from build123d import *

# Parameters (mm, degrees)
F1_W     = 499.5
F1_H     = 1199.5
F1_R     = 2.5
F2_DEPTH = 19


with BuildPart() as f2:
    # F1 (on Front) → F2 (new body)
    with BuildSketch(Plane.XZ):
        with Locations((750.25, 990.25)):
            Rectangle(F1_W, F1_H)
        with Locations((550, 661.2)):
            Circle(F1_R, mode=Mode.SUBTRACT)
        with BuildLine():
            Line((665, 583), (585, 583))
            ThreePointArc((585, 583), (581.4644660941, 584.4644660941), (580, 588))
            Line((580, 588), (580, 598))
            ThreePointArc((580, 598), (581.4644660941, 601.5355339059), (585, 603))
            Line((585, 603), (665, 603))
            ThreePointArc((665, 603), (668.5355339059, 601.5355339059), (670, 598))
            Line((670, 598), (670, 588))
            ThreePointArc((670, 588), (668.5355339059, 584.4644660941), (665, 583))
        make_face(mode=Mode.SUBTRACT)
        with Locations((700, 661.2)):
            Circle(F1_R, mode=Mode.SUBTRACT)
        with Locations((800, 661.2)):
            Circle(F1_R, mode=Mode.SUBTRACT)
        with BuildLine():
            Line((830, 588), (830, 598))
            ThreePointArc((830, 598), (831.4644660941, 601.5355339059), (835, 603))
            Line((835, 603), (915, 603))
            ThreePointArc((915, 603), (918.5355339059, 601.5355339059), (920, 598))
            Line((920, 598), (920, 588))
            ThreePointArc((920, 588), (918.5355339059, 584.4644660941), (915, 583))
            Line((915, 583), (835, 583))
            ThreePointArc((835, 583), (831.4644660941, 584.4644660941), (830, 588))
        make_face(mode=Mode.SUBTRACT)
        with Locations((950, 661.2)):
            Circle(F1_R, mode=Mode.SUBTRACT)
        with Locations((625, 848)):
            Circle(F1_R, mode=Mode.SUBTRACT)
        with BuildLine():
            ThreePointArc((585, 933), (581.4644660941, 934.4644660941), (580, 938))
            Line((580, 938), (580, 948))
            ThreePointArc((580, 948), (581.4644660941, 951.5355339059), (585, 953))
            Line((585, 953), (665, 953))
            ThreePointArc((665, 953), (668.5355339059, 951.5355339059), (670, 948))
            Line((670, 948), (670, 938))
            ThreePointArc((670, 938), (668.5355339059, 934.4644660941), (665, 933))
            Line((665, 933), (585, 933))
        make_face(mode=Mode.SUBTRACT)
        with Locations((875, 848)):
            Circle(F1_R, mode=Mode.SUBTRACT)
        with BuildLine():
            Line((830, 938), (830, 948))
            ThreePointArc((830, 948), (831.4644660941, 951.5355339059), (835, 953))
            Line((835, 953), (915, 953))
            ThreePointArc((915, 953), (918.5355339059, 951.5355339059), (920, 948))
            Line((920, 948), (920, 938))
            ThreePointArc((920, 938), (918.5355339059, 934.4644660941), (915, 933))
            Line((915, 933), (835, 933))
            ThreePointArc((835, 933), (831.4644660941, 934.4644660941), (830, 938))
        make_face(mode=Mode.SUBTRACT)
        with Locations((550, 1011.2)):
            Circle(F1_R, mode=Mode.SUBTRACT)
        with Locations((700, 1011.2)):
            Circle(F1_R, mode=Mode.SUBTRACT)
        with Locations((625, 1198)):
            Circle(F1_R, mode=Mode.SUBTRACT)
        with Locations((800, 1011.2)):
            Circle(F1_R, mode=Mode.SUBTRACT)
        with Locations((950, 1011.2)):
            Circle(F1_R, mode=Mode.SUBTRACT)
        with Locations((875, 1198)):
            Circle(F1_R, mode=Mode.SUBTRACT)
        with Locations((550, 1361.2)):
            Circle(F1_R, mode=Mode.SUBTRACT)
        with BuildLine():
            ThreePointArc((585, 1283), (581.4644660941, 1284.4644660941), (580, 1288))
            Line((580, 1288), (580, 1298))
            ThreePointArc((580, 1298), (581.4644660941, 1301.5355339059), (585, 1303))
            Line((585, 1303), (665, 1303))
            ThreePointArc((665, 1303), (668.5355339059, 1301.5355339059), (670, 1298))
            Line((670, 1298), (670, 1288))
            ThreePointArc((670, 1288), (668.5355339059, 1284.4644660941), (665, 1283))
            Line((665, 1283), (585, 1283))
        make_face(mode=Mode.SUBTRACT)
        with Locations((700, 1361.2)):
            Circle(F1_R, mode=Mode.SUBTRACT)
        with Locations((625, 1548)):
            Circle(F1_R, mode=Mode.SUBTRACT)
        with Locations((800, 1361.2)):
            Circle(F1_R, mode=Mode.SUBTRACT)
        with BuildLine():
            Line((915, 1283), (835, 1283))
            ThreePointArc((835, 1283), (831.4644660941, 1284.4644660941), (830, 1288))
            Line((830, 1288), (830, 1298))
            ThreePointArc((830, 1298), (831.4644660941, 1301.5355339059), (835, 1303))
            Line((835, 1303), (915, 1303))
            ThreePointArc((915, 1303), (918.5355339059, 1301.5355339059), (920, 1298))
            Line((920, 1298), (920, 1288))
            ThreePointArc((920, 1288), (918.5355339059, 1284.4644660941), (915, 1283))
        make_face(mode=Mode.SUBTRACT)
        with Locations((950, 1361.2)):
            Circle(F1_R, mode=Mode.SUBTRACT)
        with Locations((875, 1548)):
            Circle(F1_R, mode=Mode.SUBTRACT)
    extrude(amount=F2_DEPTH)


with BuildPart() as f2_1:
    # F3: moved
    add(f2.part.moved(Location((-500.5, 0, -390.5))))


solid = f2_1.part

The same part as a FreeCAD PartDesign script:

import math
import FreeCAD as App
import Part
import Sketcher

V = App.Vector


def add_polygon(sketch, points):
    """Adds a closed chain of lines whose ends are joined by coincident constraints."""
    first, n = sketch.GeometryCount, len(points)
    for a, b in zip(points, points[1:] + points[:1]):
        sketch.addGeometry(Part.LineSegment(App.Vector(*a, 0), App.Vector(*b, 0)), False)
    for i in range(n):
        sketch.addConstraint(Sketcher.Constraint("Coincident", first + i, 2, first + (i + 1) % n, 1))

doc = App.newDocument("Part")
params = doc.addObject("Spreadsheet::Sheet", "Params")
for row, (alias, value) in enumerate([
    ("sketch1_diameter", "5 mm"),
    ("sketch1_radius", "5 mm"),
    ("sketch1_width", "80 mm"),
    ("sketch1_height", "10 mm"),
    ("sketch1_width2", "499.5 mm"),
    ("pad1_length", "19 mm"),
], start=1):
    params.set(f"A{row}", alias)
    params.set(f"B{row}", "=" + value)
    params.setAlias(f"B{row}", alias)

body = doc.addObject("PartDesign::Body", "Body")

sketch1 = body.newObject("Sketcher::SketchObject", "Sketch")
sketch1.AttachmentSupport = (doc.getObject("XZ_Plane"), [""])
sketch1.MapMode = "FlatFace"
add_polygon(sketch1, [(500.5, 1590), (500.5, 390.5), (1000, 390.5), (1000, 1590)])
sketch1.addGeometry(Part.Circle(V(550, 661.2, 0), V(0, 0, 1), 2.5), False)
sketch1.addGeometry(Part.ArcOfCircle(Part.Circle(V(665, 588, 0), V(0, 0, 1), 5), math.radians(-90), math.radians(0)), False)
sketch1.addGeometry(Part.LineSegment(V(665, 583, 0), V(585, 583, 0)), False)
sketch1.addGeometry(Part.ArcOfCircle(Part.Circle(V(585, 588, 0), V(0, 0, 1), 5), math.radians(180), math.radians(270)), False)
sketch1.addGeometry(Part.LineSegment(V(580, 588, 0), V(580, 598, 0)), False)
sketch1.addGeometry(Part.ArcOfCircle(Part.Circle(V(585, 598, 0), V(0, 0, 1), 5), math.radians(90), math.radians(180)), False)
sketch1.addGeometry(Part.LineSegment(V(585, 603, 0), V(665, 603, 0)), False)
sketch1.addGeometry(Part.ArcOfCircle(Part.Circle(V(665, 598, 0), V(0, 0, 1), 5), math.radians(0), math.radians(90)), False)
sketch1.addGeometry(Part.LineSegment(V(670, 598, 0), V(670, 588, 0)), False)
sketch1.addGeometry(Part.Circle(V(700, 661.2, 0), V(0, 0, 1), 2.5), False)
sketch1.addGeometry(Part.Circle(V(625, 848, 0), V(0, 0, 1), 2.5), False)
sketch1.addGeometry(Part.LineSegment(V(665, 933, 0), V(585, 933, 0)), False)
sketch1.addGeometry(Part.ArcOfCircle(Part.Circle(V(585, 938, 0), V(0, 0, 1), 5), math.radians(180), math.radians(270)), False)
sketch1.addGeometry(Part.LineSegment(V(580, 938, 0), V(580, 948, 0)), False)
sketch1.addGeometry(Part.ArcOfCircle(Part.Circle(V(585, 948, 0), V(0, 0, 1), 5), math.radians(90), math.radians(180)), False)
sketch1.addGeometry(Part.LineSegment(V(585, 953, 0), V(665, 953, 0)), False)
sketch1.addGeometry(Part.ArcOfCircle(Part.Circle(V(665, 948, 0), V(0, 0, 1), 5), math.radians(0), math.radians(90)), False)
sketch1.addGeometry(Part.LineSegment(V(670, 948, 0), V(670, 938, 0)), False)
sketch1.addGeometry(Part.ArcOfCircle(Part.Circle(V(665, 938, 0), V(0, 0, 1), 5), math.radians(-90), math.radians(0)), False)
sketch1.addGeometry(Part.Circle(V(550, 1011.2, 0), V(0, 0, 1), 2.5), False)
sketch1.addGeometry(Part.Circle(V(700, 1011.2, 0), V(0, 0, 1), 2.5), False)
sketch1.addGeometry(Part.Circle(V(800, 661.2, 0), V(0, 0, 1), 2.5), False)
sketch1.addGeometry(Part.ArcOfCircle(Part.Circle(V(835, 588, 0), V(0, 0, 1), 5), math.radians(180), math.radians(270)), False)
sketch1.addGeometry(Part.LineSegment(V(830, 588, 0), V(830, 598, 0)), False)
sketch1.addGeometry(Part.ArcOfCircle(Part.Circle(V(835, 598, 0), V(0, 0, 1), 5), math.radians(90), math.radians(180)), False)
sketch1.addGeometry(Part.LineSegment(V(835, 603, 0), V(915, 603, 0)), False)
sketch1.addGeometry(Part.ArcOfCircle(Part.Circle(V(915, 598, 0), V(0, 0, 1), 5), math.radians(0), math.radians(90)), False)
sketch1.addGeometry(Part.LineSegment(V(920, 598, 0), V(920, 588, 0)), False)
sketch1.addGeometry(Part.ArcOfCircle(Part.Circle(V(915, 588, 0), V(0, 0, 1), 5), math.radians(-90), math.radians(0)), False)
sketch1.addGeometry(Part.LineSegment(V(915, 583, 0), V(835, 583, 0)), False)
sketch1.addGeometry(Part.Circle(V(950, 661.2, 0), V(0, 0, 1), 2.5), False)
sketch1.addGeometry(Part.Circle(V(800, 1011.2, 0), V(0, 0, 1), 2.5), False)
sketch1.addGeometry(Part.Circle(V(875, 848, 0), V(0, 0, 1), 2.5), False)
sketch1.addGeometry(Part.ArcOfCircle(Part.Circle(V(835, 938, 0), V(0, 0, 1), 5), math.radians(180), math.radians(270)), False)
sketch1.addGeometry(Part.LineSegment(V(830, 938, 0), V(830, 948, 0)), False)
sketch1.addGeometry(Part.ArcOfCircle(Part.Circle(V(835, 948, 0), V(0, 0, 1), 5), math.radians(90), math.radians(180)), False)
sketch1.addGeometry(Part.LineSegment(V(835, 953, 0), V(915, 953, 0)), False)
sketch1.addGeometry(Part.ArcOfCircle(Part.Circle(V(915, 948, 0), V(0, 0, 1), 5), math.radians(0), math.radians(90)), False)
sketch1.addGeometry(Part.LineSegment(V(920, 948, 0), V(920, 938, 0)), False)
sketch1.addGeometry(Part.ArcOfCircle(Part.Circle(V(915, 938, 0), V(0, 0, 1), 5), math.radians(-90), math.radians(0)), False)
sketch1.addGeometry(Part.LineSegment(V(915, 933, 0), V(835, 933, 0)), False)
sketch1.addGeometry(Part.Circle(V(950, 1011.2, 0), V(0, 0, 1), 2.5), False)
sketch1.addGeometry(Part.Circle(V(625, 1198, 0), V(0, 0, 1), 2.5), False)
sketch1.addGeometry(Part.LineSegment(V(665, 1283, 0), V(585, 1283, 0)), False)
sketch1.addGeometry(Part.ArcOfCircle(Part.Circle(V(585, 1288, 0), V(0, 0, 1), 5), math.radians(180), math.radians(270)), False)
sketch1.addGeometry(Part.LineSegment(V(580, 1288, 0), V(580, 1298, 0)), False)
sketch1.addGeometry(Part.ArcOfCircle(Part.Circle(V(585, 1298, 0), V(0, 0, 1), 5), math.radians(90), math.radians(180)), False)
sketch1.addGeometry(Part.LineSegment(V(585, 1303, 0), V(665, 1303, 0)), False)
sketch1.addGeometry(Part.ArcOfCircle(Part.Circle(V(665, 1298, 0), V(0, 0, 1), 5), math.radians(0), math.radians(90)), False)
sketch1.addGeometry(Part.LineSegment(V(670, 1298, 0), V(670, 1288, 0)), False)
sketch1.addGeometry(Part.ArcOfCircle(Part.Circle(V(665, 1288, 0), V(0, 0, 1), 5), math.radians(-90), math.radians(0)), False)
sketch1.addGeometry(Part.Circle(V(550, 1361.2, 0), V(0, 0, 1), 2.5), False)
sketch1.addGeometry(Part.Circle(V(625, 1548, 0), V(0, 0, 1), 2.5), False)
sketch1.addGeometry(Part.Circle(V(700, 1361.2, 0), V(0, 0, 1), 2.5), False)
sketch1.addGeometry(Part.Circle(V(875, 1198, 0), V(0, 0, 1), 2.5), False)
sketch1.addGeometry(Part.ArcOfCircle(Part.Circle(V(915, 1288, 0), V(0, 0, 1), 5), math.radians(-90), math.radians(0)), False)
sketch1.addGeometry(Part.LineSegment(V(915, 1283, 0), V(835, 1283, 0)), False)
sketch1.addGeometry(Part.ArcOfCircle(Part.Circle(V(835, 1288, 0), V(0, 0, 1), 5), math.radians(180), math.radians(270)), False)
sketch1.addGeometry(Part.LineSegment(V(830, 1288, 0), V(830, 1298, 0)), False)
sketch1.addGeometry(Part.ArcOfCircle(Part.Circle(V(835, 1298, 0), V(0, 0, 1), 5), math.radians(90), math.radians(180)), False)
sketch1.addGeometry(Part.LineSegment(V(835, 1303, 0), V(915, 1303, 0)), False)
sketch1.addGeometry(Part.ArcOfCircle(Part.Circle(V(915, 1298, 0), V(0, 0, 1), 5), math.radians(0), math.radians(90)), False)
sketch1.addGeometry(Part.LineSegment(V(920, 1298, 0), V(920, 1288, 0)), False)
sketch1.addGeometry(Part.Circle(V(800, 1361.2, 0), V(0, 0, 1), 2.5), False)
sketch1.addGeometry(Part.Circle(V(950, 1361.2, 0), V(0, 0, 1), 2.5), False)
sketch1.addGeometry(Part.Circle(V(875, 1548, 0), V(0, 0, 1), 2.5), False)
sketch1.addConstraint([
    Sketcher.Constraint("Tangent", 5, 1, 6, 1),
    Sketcher.Constraint("Tangent", 6, 2, 7, 2),
    Sketcher.Constraint("Tangent", 7, 1, 8, 1),
    Sketcher.Constraint("Tangent", 8, 2, 9, 2),
    Sketcher.Constraint("Tangent", 9, 1, 10, 1),
    Sketcher.Constraint("Tangent", 10, 2, 11, 2),
    Sketcher.Constraint("Tangent", 11, 1, 12, 1),
    Sketcher.Constraint("Tangent", 12, 2, 5, 2),
    Sketcher.Constraint("Tangent", 15, 2, 16, 2),
    Sketcher.Constraint("Tangent", 16, 1, 17, 1),
    Sketcher.Constraint("Tangent", 17, 2, 18, 2),
    Sketcher.Constraint("Tangent", 18, 1, 19, 1),
    Sketcher.Constraint("Tangent", 19, 2, 20, 2),
    Sketcher.Constraint("Tangent", 20, 1, 21, 1),
    Sketcher.Constraint("Tangent", 21, 2, 22, 2),
    Sketcher.Constraint("Tangent", 22, 1, 15, 1),
    Sketcher.Constraint("Tangent", 26, 1, 27, 1),
    Sketcher.Constraint("Tangent", 27, 2, 28, 2),
    Sketcher.Constraint("Tangent", 28, 1, 29, 1),
    Sketcher.Constraint("Tangent", 29, 2, 30, 2),
    Sketcher.Constraint("Tangent", 30, 1, 31, 1),
    Sketcher.Constraint("Tangent", 31, 2, 32, 2),
    Sketcher.Constraint("Tangent", 32, 1, 33, 1),
    Sketcher.Constraint("Tangent", 33, 2, 26, 2),
    Sketcher.Constraint("Tangent", 37, 1, 38, 1),
    Sketcher.Constraint("Tangent", 38, 2, 39, 2),
    Sketcher.Constraint("Tangent", 39, 1, 40, 1),
    Sketcher.Constraint("Tangent", 40, 2, 41, 2),
    Sketcher.Constraint("Tangent", 41, 1, 42, 1),
    Sketcher.Constraint("Tangent", 42, 2, 43, 2),
    Sketcher.Constraint("Tangent", 43, 1, 44, 1),
    Sketcher.Constraint("Tangent", 44, 2, 37, 2),
    Sketcher.Constraint("Tangent", 47, 2, 48, 2),
    Sketcher.Constraint("Tangent", 48, 1, 49, 1),
    Sketcher.Constraint("Tangent", 49, 2, 50, 2),
    Sketcher.Constraint("Tangent", 50, 1, 51, 1),
    Sketcher.Constraint("Tangent", 51, 2, 52, 2),
    Sketcher.Constraint("Tangent", 52, 1, 53, 1),
    Sketcher.Constraint("Tangent", 53, 2, 54, 2),
    Sketcher.Constraint("Tangent", 54, 1, 47, 1),
    Sketcher.Constraint("Tangent", 59, 1, 60, 1),
    Sketcher.Constraint("Tangent", 60, 2, 61, 2),
    Sketcher.Constraint("Tangent", 61, 1, 62, 1),
    Sketcher.Constraint("Tangent", 62, 2, 63, 2),
    Sketcher.Constraint("Tangent", 63, 1, 64, 1),
    Sketcher.Constraint("Tangent", 64, 2, 65, 2),
    Sketcher.Constraint("Tangent", 65, 1, 66, 1),
    Sketcher.Constraint("Tangent", 66, 2, 59, 2),
    Sketcher.Constraint("Vertical", 0),
    Sketcher.Constraint("Horizontal", 1),
    Sketcher.Constraint("Vertical", 2),
    Sketcher.Constraint("Horizontal", 3),
    Sketcher.Constraint("Horizontal", 6),
    Sketcher.Constraint("Vertical", 8),
    Sketcher.Constraint("Horizontal", 10),
    Sketcher.Constraint("Vertical", 12),
    Sketcher.Constraint("Horizontal", 15),
    Sketcher.Constraint("Vertical", 17),
    Sketcher.Constraint("Horizontal", 19),
    Sketcher.Constraint("Vertical", 21),
    Sketcher.Constraint("Vertical", 27),
    Sketcher.Constraint("Horizontal", 29),
    Sketcher.Constraint("Vertical", 31),
    Sketcher.Constraint("Horizontal", 33),
    Sketcher.Constraint("Vertical", 38),
    Sketcher.Constraint("Horizontal", 40),
    Sketcher.Constraint("Vertical", 42),
    Sketcher.Constraint("Horizontal", 44),
    Sketcher.Constraint("Horizontal", 47),
    Sketcher.Constraint("Vertical", 49),
    Sketcher.Constraint("Horizontal", 51),
    Sketcher.Constraint("Vertical", 53),
    Sketcher.Constraint("Horizontal", 60),
    Sketcher.Constraint("Vertical", 62),
    Sketcher.Constraint("Horizontal", 64),
    Sketcher.Constraint("Vertical", 66),
    Sketcher.Constraint("Equal", 5, 7),
    Sketcher.Constraint("Equal", 7, 9),
    Sketcher.Constraint("Equal", 9, 11),
    Sketcher.Constraint("Equal", 4, 13),
    Sketcher.Constraint("Equal", 13, 14),
    Sketcher.Constraint("Equal", 11, 16),
    Sketcher.Constraint("Equal", 16, 18),
    Sketcher.Constraint("Equal", 18, 20),
    Sketcher.Constraint("Equal", 20, 22),
    Sketcher.Constraint("Equal", 14, 23),
    Sketcher.Constraint("Equal", 23, 24),
    Sketcher.Constraint("Equal", 24, 25),
    Sketcher.Constraint("Equal", 22, 26),
    Sketcher.Constraint("Equal", 26, 28),
    Sketcher.Constraint("Equal", 28, 30),
    Sketcher.Constraint("Equal", 30, 32),
    Sketcher.Constraint("Equal", 25, 34),
    Sketcher.Constraint("Equal", 34, 35),
    Sketcher.Constraint("Equal", 35, 36),
    Sketcher.Constraint("Equal", 32, 37),
    Sketcher.Constraint("Equal", 37, 39),
    Sketcher.Constraint("Equal", 39, 41),
    Sketcher.Constraint("Equal", 41, 43),
    Sketcher.Constraint("Equal", 36, 45),
    Sketcher.Constraint("Equal", 45, 46),
    Sketcher.Constraint("Equal", 43, 48),
    Sketcher.Constraint("Equal", 48, 50),
    Sketcher.Constraint("Equal", 50, 52),
    Sketcher.Constraint("Equal", 52, 54),
    Sketcher.Constraint("Equal", 46, 55),
    Sketcher.Constraint("Equal", 55, 56),
    Sketcher.Constraint("Equal", 56, 57),
    Sketcher.Constraint("Equal", 57, 58),
    Sketcher.Constraint("Equal", 54, 59),
    Sketcher.Constraint("Equal", 59, 61),
    Sketcher.Constraint("Equal", 61, 63),
    Sketcher.Constraint("Equal", 63, 65),
    Sketcher.Constraint("Equal", 58, 67),
    Sketcher.Constraint("Equal", 67, 68),
    Sketcher.Constraint("Equal", 68, 69),
    Sketcher.Constraint("Horizontal", 4, 3, 13, 3),
    Sketcher.Constraint("Horizontal", 23, 3, 24, 3),
    Sketcher.Constraint("Horizontal", 13, 3, 25, 3),
    Sketcher.Constraint("Horizontal", 7, 3, 26, 3),
    Sketcher.Constraint("Horizontal", 11, 3, 28, 3),
    Sketcher.Constraint("Horizontal", 25, 3, 34, 3),
    Sketcher.Constraint("Horizontal", 24, 3, 35, 3),
    Sketcher.Constraint("Horizontal", 14, 3, 36, 3),
    Sketcher.Constraint("Horizontal", 22, 3, 37, 3),
    Sketcher.Constraint("Horizontal", 20, 3, 39, 3),
    Sketcher.Constraint("Horizontal", 35, 3, 45, 3),
    Sketcher.Constraint("Horizontal", 55, 3, 57, 3),
    Sketcher.Constraint("Horizontal", 46, 3, 58, 3),
    Sketcher.Constraint("Horizontal", 54, 3, 59, 3),
    Sketcher.Constraint("Horizontal", 52, 3, 63, 3),
    Sketcher.Constraint("Horizontal", 57, 3, 67, 3),
    Sketcher.Constraint("Horizontal", 67, 3, 68, 3),
    Sketcher.Constraint("Horizontal", 56, 3, 69, 3),
    Sketcher.Constraint("Vertical", 9, 3, 16, 3),
    Sketcher.Constraint("Vertical", 11, 3, 20, 3),
    Sketcher.Constraint("Vertical", 4, 3, 23, 3),
    Sketcher.Constraint("Vertical", 13, 3, 24, 3),
    Sketcher.Constraint("Vertical", 25, 3, 35, 3),
    Sketcher.Constraint("Vertical", 28, 3, 37, 3),
    Sketcher.Constraint("Vertical", 32, 3, 41, 3),
    Sketcher.Constraint("Vertical", 34, 3, 45, 3),
    Sketcher.Constraint("Vertical", 14, 3, 46, 3),
    Sketcher.Constraint("Vertical", 18, 3, 48, 3),
    Sketcher.Constraint("Vertical", 22, 3, 52, 3),
    Sketcher.Constraint("Vertical", 23, 3, 55, 3),
    Sketcher.Constraint("Vertical", 46, 3, 56, 3),
    Sketcher.Constraint("Vertical", 24, 3, 57, 3),
    Sketcher.Constraint("Vertical", 36, 3, 58, 3),
    Sketcher.Constraint("Vertical", 43, 3, 59, 3),
    Sketcher.Constraint("Vertical", 39, 3, 61, 3),
    Sketcher.Constraint("Vertical", 35, 3, 67, 3),
    Sketcher.Constraint("Vertical", 45, 3, 68, 3),
    Sketcher.Constraint("Vertical", 58, 3, 69, 3),
    Sketcher.Constraint("Equal", 19, 29),
    Sketcher.Constraint("Equal", 12, 17),
    Sketcher.Constraint("Equal", 42, 49),
    Sketcher.Constraint("Diameter", 4, 5.0),
    Sketcher.Constraint("Radius", 5, 5.0),
    Sketcher.Constraint("DistanceX", 6, 2, 6, 1, 80.0),
    Sketcher.Constraint("DistanceY", 8, 1, 8, 2, 10.0),
    Sketcher.Constraint("DistanceX", 1, 1, 1, 2, 499.5),
    Sketcher.Constraint("DistanceY", 0, 2, 0, 1, 1199.5),
    Sketcher.Constraint("DistanceX", -1, 1, 4, 3, 550.0),
    Sketcher.Constraint("DistanceX", -1, 1, 5, 3, 665.0),
    Sketcher.Constraint("DistanceY", -1, 1, 5, 3, 588.0),
    Sketcher.Constraint("DistanceX", -1, 1, 13, 3, 700.0),
    Sketcher.Constraint("DistanceX", -1, 1, 14, 3, 625.0),
    Sketcher.Constraint("DistanceY", -1, 1, 14, 3, 848.0),
    Sketcher.Constraint("DistanceY", -1, 1, 16, 3, 938.0),
    Sketcher.Constraint("DistanceX", -1, 1, 25, 3, 800.0),
    Sketcher.Constraint("DistanceX", -1, 1, 26, 3, 835.0),
    Sketcher.Constraint("DistanceX", -1, 1, 34, 3, 950.0),
    Sketcher.Constraint("DistanceX", -1, 1, 36, 3, 875.0),
    Sketcher.Constraint("DistanceY", -1, 1, 46, 3, 1198.0),
    Sketcher.Constraint("DistanceY", -1, 1, 48, 3, 1288.0),
    Sketcher.Constraint("DistanceY", -1, 1, 56, 3, 1548.0),
    Sketcher.Constraint("DistanceX", -1, 1, 1, 2, 1000.0),
    Sketcher.Constraint("DistanceY", -1, 1, 2, 2, 1590.0),
    Sketcher.Constraint("DistanceY", -1, 1, 4, 3, 661.2),
    Sketcher.Constraint("DistanceY", -1, 1, 23, 3, 1011.2),
    Sketcher.Constraint("DistanceY", -1, 1, 55, 3, 1361.2),
])
sketch1.setExpression("Constraints[161]", "Params.sketch1_diameter")
sketch1.setExpression("Constraints[162]", "Params.sketch1_radius")
sketch1.setExpression("Constraints[163]", "Params.sketch1_width")
sketch1.setExpression("Constraints[164]", "Params.sketch1_height")
sketch1.setExpression("Constraints[165]", "Params.sketch1_width2")
pad1 = body.newObject("PartDesign::Pad", "Pad")
pad1.Profile = sketch1
pad1.setExpression("Length", "Params.pad1_length")
body2 = doc.addObject("PartDesign::Body", "Body001")
doc.recompute()

body.Placement = App.Placement(V(-500.5, 0, -390.5), App.Rotation(V(0, 0, 1), 0))
boolean = body2.newObject("PartDesign::Boolean", "Boolean")
boolean.Type = "Fuse"
boolean.addObjects([body])

doc.recompute()
